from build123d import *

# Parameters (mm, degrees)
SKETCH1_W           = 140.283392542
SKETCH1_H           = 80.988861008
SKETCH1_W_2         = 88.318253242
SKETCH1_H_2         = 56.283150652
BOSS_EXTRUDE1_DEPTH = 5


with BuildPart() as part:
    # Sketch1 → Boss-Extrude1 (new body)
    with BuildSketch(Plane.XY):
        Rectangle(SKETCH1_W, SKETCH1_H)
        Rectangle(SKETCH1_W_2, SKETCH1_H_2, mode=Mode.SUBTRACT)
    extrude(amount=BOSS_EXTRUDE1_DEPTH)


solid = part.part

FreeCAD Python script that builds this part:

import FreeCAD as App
import Part
import Sketcher
from FreeCAD import Vector


def add_polygon(sketch, points):
    """Adds a closed chain of lines whose ends are joined by coincident constraints."""
    first, n = sketch.GeometryCount, len(points)
    for a, b in zip(points, points[1:] + points[:1]):
        sketch.addGeometry(Part.LineSegment(App.Vector(*a, 0), App.Vector(*b, 0)), False)
    for i in range(n):
        sketch.addConstraint(Sketcher.Constraint("Coincident", first + i, 2, first + (i + 1) % n, 1))

doc = App.newDocument("Part")
params = doc.addObject("Spreadsheet::Sheet", "Params")
for row, (alias, value) in enumerate([
    ("pad1_length", "5 mm"),
], start=1):
    params.set(f"A{row}", alias)
    params.set(f"B{row}", "=" + value)
    params.setAlias(f"B{row}", alias)

body = doc.addObject("PartDesign::Body", "Body")

# Sketch on XY plane
sketch1 = body.newObject("Sketcher::SketchObject", "Sketch")
sketch1.AttachmentSupport = (doc.getObject("XY_Plane"), [""])
sketch1.MapMode = "FlatFace"
add_polygon(sketch1, [(-70, 40), (-70, -40), (70, -40), (70, 40)])  # lines 0-3
add_polygon(sketch1, [(44, -28), (-44, -28), (-44, 28), (44, 28)])  # lines 4-7
sketch1.addConstraint(Sketcher.Constraint("Vertical", 0))
sketch1.addConstraint(Sketcher.Constraint("Horizontal", 1))
sketch1.addConstraint(Sketcher.Constraint("Vertical", 2))
sketch1.addConstraint(Sketcher.Constraint("Horizontal", 3))
sketch1.addConstraint(Sketcher.Constraint("Horizontal", 4))
sketch1.addConstraint(Sketcher.Constraint("Vertical", 5))
sketch1.addConstraint(Sketcher.Constraint("Horizontal", 6))
sketch1.addConstraint(Sketcher.Constraint("Vertical", 7))
sketch1.addConstraint(Sketcher.Constraint("Symmetric", 0, 2, 2, 2, -1, 1))
sketch1.addConstraint(Sketcher.Constraint("Symmetric", 4, 2, 6, 2, -1, 1))
sketch1.addConstraint(Sketcher.Constraint("DistanceY", 0, 2, 0, 1, 80.988861))
sketch1.addConstraint(Sketcher.Constraint("DistanceY", 5, 1, 5, 2, 56.283151))
sketch1.addConstraint(Sketcher.Constraint("DistanceX", 1, 1, 1, 2, 140.283393))
sketch1.addConstraint(Sketcher.Constraint("DistanceX", 4, 2, 4, 1, 88.318253))
pad1 = body.newObject("PartDesign::Pad", "Pad")
pad1.Profile = sketch1
pad1.setExpression("Length", "Params.pad1_length")

doc.recompute()
